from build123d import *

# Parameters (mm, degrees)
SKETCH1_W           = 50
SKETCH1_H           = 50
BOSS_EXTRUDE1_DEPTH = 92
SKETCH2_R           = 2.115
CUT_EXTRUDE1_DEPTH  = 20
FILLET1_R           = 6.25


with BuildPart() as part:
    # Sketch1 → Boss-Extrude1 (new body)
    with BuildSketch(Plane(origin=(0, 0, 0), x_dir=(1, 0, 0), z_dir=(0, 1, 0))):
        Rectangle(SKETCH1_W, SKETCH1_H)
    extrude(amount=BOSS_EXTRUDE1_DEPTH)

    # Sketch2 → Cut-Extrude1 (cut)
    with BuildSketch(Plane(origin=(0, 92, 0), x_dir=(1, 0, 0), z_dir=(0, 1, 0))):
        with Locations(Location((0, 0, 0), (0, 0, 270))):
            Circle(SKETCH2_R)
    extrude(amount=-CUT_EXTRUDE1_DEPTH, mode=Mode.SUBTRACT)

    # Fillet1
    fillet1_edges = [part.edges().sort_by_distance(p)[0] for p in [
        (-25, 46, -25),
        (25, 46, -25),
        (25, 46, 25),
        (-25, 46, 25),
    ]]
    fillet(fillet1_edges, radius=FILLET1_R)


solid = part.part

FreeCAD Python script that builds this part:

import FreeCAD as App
import Part
import Sketcher
from FreeCAD import Vector


def edges_at(feature, points):
    """Names of the edges that pass closest to the given points."""
    edges = feature.Shape.Edges
    near = lambda p: min(range(len(edges)), key=lambda i: edges[i].distToShape(Part.Vertex(*p))[0])
    return sorted({f"Edge{near(p) + 1}" for p in points})


def add_polygon(sketch, points):
    """Adds a closed chain of lines whose ends are joined by coincident constraints."""
    first, n = sketch.GeometryCount, len(points)
    for a, b in zip(points, points[1:] + points[:1]):
        sketch.addGeometry(Part.LineSegment(App.Vector(*a, 0), App.Vector(*b, 0)), False)
    for i in range(n):
        sketch.addConstraint(Sketcher.Constraint("Coincident", first + i, 2, first + (i + 1) % n, 1))

doc = App.newDocument("Part")
body = doc.addObject("PartDesign::Body", "Body")

# Sketch on XZ plane
sketch1 = body.newObject("Sketcher::SketchObject", "Sketch")
sketch1.AttachmentSupport = (doc.getObject("XZ_Plane"), [""])
sketch1.MapMode = "FlatFace"
add_polygon(sketch1, [(-25, -25), (-25, 25), (25, 25), (25, -25)])  # lines 0-3
sketch1.addConstraint([
    Sketcher.Constraint("Vertical", 0),
    Sketcher.Constraint("Horizontal", 1),
    Sketcher.Constraint("Vertical", 2),
    Sketcher.Constraint("Horizontal", 3),
    Sketcher.Constraint("Symmetric", 0, 2, 2, 2, -1, 1),
    Sketcher.Constraint("Equal", 3, 0),
    Sketcher.Constraint("DistanceX", 1, 1, 1, 2, 50.0),
])
pad1 = body.newObject("PartDesign::Pad", "Pad")
pad1.Profile = sketch1
pad1.Length = 92
pad1.Reversed = True

# Sketch on XZ plane
sketch2 = body.newObject("Sketcher::SketchObject", "Sketch001")
sketch2.AttachmentSupport = (doc.getObject("XZ_Plane"), [""])
sketch2.MapMode = "FlatFace"
sketch2.AttachmentOffset = App.Placement(Vector(0, 0, -92), App.Rotation())
sketch2.addGeometry(Part.Circle(Vector(0, 0, 0), Vector(0, 0, 1), 2.115), False)
sketch2.addConstraint([
    Sketcher.Constraint("Coincident", 0, 3, -1, 1),
    Sketcher.Constraint("Diameter", 0, 4.23),
])
pocket1 = body.newObject("PartDesign::Pocket", "Pocket")
pocket1.Profile = sketch2
pocket1.Length = 20
pocket1.Reversed = True
doc.recompute()

fillet = body.newObject("PartDesign::Fillet", "Fillet")
fillet.Base = (pocket1, edges_at(pocket1, [
    (-25, 46, -25),
    (25, 46, -25),
    (25, 46, 25),
    (-25, 46, 25),
]))
fillet.Radius = 6.25

doc.recompute()
